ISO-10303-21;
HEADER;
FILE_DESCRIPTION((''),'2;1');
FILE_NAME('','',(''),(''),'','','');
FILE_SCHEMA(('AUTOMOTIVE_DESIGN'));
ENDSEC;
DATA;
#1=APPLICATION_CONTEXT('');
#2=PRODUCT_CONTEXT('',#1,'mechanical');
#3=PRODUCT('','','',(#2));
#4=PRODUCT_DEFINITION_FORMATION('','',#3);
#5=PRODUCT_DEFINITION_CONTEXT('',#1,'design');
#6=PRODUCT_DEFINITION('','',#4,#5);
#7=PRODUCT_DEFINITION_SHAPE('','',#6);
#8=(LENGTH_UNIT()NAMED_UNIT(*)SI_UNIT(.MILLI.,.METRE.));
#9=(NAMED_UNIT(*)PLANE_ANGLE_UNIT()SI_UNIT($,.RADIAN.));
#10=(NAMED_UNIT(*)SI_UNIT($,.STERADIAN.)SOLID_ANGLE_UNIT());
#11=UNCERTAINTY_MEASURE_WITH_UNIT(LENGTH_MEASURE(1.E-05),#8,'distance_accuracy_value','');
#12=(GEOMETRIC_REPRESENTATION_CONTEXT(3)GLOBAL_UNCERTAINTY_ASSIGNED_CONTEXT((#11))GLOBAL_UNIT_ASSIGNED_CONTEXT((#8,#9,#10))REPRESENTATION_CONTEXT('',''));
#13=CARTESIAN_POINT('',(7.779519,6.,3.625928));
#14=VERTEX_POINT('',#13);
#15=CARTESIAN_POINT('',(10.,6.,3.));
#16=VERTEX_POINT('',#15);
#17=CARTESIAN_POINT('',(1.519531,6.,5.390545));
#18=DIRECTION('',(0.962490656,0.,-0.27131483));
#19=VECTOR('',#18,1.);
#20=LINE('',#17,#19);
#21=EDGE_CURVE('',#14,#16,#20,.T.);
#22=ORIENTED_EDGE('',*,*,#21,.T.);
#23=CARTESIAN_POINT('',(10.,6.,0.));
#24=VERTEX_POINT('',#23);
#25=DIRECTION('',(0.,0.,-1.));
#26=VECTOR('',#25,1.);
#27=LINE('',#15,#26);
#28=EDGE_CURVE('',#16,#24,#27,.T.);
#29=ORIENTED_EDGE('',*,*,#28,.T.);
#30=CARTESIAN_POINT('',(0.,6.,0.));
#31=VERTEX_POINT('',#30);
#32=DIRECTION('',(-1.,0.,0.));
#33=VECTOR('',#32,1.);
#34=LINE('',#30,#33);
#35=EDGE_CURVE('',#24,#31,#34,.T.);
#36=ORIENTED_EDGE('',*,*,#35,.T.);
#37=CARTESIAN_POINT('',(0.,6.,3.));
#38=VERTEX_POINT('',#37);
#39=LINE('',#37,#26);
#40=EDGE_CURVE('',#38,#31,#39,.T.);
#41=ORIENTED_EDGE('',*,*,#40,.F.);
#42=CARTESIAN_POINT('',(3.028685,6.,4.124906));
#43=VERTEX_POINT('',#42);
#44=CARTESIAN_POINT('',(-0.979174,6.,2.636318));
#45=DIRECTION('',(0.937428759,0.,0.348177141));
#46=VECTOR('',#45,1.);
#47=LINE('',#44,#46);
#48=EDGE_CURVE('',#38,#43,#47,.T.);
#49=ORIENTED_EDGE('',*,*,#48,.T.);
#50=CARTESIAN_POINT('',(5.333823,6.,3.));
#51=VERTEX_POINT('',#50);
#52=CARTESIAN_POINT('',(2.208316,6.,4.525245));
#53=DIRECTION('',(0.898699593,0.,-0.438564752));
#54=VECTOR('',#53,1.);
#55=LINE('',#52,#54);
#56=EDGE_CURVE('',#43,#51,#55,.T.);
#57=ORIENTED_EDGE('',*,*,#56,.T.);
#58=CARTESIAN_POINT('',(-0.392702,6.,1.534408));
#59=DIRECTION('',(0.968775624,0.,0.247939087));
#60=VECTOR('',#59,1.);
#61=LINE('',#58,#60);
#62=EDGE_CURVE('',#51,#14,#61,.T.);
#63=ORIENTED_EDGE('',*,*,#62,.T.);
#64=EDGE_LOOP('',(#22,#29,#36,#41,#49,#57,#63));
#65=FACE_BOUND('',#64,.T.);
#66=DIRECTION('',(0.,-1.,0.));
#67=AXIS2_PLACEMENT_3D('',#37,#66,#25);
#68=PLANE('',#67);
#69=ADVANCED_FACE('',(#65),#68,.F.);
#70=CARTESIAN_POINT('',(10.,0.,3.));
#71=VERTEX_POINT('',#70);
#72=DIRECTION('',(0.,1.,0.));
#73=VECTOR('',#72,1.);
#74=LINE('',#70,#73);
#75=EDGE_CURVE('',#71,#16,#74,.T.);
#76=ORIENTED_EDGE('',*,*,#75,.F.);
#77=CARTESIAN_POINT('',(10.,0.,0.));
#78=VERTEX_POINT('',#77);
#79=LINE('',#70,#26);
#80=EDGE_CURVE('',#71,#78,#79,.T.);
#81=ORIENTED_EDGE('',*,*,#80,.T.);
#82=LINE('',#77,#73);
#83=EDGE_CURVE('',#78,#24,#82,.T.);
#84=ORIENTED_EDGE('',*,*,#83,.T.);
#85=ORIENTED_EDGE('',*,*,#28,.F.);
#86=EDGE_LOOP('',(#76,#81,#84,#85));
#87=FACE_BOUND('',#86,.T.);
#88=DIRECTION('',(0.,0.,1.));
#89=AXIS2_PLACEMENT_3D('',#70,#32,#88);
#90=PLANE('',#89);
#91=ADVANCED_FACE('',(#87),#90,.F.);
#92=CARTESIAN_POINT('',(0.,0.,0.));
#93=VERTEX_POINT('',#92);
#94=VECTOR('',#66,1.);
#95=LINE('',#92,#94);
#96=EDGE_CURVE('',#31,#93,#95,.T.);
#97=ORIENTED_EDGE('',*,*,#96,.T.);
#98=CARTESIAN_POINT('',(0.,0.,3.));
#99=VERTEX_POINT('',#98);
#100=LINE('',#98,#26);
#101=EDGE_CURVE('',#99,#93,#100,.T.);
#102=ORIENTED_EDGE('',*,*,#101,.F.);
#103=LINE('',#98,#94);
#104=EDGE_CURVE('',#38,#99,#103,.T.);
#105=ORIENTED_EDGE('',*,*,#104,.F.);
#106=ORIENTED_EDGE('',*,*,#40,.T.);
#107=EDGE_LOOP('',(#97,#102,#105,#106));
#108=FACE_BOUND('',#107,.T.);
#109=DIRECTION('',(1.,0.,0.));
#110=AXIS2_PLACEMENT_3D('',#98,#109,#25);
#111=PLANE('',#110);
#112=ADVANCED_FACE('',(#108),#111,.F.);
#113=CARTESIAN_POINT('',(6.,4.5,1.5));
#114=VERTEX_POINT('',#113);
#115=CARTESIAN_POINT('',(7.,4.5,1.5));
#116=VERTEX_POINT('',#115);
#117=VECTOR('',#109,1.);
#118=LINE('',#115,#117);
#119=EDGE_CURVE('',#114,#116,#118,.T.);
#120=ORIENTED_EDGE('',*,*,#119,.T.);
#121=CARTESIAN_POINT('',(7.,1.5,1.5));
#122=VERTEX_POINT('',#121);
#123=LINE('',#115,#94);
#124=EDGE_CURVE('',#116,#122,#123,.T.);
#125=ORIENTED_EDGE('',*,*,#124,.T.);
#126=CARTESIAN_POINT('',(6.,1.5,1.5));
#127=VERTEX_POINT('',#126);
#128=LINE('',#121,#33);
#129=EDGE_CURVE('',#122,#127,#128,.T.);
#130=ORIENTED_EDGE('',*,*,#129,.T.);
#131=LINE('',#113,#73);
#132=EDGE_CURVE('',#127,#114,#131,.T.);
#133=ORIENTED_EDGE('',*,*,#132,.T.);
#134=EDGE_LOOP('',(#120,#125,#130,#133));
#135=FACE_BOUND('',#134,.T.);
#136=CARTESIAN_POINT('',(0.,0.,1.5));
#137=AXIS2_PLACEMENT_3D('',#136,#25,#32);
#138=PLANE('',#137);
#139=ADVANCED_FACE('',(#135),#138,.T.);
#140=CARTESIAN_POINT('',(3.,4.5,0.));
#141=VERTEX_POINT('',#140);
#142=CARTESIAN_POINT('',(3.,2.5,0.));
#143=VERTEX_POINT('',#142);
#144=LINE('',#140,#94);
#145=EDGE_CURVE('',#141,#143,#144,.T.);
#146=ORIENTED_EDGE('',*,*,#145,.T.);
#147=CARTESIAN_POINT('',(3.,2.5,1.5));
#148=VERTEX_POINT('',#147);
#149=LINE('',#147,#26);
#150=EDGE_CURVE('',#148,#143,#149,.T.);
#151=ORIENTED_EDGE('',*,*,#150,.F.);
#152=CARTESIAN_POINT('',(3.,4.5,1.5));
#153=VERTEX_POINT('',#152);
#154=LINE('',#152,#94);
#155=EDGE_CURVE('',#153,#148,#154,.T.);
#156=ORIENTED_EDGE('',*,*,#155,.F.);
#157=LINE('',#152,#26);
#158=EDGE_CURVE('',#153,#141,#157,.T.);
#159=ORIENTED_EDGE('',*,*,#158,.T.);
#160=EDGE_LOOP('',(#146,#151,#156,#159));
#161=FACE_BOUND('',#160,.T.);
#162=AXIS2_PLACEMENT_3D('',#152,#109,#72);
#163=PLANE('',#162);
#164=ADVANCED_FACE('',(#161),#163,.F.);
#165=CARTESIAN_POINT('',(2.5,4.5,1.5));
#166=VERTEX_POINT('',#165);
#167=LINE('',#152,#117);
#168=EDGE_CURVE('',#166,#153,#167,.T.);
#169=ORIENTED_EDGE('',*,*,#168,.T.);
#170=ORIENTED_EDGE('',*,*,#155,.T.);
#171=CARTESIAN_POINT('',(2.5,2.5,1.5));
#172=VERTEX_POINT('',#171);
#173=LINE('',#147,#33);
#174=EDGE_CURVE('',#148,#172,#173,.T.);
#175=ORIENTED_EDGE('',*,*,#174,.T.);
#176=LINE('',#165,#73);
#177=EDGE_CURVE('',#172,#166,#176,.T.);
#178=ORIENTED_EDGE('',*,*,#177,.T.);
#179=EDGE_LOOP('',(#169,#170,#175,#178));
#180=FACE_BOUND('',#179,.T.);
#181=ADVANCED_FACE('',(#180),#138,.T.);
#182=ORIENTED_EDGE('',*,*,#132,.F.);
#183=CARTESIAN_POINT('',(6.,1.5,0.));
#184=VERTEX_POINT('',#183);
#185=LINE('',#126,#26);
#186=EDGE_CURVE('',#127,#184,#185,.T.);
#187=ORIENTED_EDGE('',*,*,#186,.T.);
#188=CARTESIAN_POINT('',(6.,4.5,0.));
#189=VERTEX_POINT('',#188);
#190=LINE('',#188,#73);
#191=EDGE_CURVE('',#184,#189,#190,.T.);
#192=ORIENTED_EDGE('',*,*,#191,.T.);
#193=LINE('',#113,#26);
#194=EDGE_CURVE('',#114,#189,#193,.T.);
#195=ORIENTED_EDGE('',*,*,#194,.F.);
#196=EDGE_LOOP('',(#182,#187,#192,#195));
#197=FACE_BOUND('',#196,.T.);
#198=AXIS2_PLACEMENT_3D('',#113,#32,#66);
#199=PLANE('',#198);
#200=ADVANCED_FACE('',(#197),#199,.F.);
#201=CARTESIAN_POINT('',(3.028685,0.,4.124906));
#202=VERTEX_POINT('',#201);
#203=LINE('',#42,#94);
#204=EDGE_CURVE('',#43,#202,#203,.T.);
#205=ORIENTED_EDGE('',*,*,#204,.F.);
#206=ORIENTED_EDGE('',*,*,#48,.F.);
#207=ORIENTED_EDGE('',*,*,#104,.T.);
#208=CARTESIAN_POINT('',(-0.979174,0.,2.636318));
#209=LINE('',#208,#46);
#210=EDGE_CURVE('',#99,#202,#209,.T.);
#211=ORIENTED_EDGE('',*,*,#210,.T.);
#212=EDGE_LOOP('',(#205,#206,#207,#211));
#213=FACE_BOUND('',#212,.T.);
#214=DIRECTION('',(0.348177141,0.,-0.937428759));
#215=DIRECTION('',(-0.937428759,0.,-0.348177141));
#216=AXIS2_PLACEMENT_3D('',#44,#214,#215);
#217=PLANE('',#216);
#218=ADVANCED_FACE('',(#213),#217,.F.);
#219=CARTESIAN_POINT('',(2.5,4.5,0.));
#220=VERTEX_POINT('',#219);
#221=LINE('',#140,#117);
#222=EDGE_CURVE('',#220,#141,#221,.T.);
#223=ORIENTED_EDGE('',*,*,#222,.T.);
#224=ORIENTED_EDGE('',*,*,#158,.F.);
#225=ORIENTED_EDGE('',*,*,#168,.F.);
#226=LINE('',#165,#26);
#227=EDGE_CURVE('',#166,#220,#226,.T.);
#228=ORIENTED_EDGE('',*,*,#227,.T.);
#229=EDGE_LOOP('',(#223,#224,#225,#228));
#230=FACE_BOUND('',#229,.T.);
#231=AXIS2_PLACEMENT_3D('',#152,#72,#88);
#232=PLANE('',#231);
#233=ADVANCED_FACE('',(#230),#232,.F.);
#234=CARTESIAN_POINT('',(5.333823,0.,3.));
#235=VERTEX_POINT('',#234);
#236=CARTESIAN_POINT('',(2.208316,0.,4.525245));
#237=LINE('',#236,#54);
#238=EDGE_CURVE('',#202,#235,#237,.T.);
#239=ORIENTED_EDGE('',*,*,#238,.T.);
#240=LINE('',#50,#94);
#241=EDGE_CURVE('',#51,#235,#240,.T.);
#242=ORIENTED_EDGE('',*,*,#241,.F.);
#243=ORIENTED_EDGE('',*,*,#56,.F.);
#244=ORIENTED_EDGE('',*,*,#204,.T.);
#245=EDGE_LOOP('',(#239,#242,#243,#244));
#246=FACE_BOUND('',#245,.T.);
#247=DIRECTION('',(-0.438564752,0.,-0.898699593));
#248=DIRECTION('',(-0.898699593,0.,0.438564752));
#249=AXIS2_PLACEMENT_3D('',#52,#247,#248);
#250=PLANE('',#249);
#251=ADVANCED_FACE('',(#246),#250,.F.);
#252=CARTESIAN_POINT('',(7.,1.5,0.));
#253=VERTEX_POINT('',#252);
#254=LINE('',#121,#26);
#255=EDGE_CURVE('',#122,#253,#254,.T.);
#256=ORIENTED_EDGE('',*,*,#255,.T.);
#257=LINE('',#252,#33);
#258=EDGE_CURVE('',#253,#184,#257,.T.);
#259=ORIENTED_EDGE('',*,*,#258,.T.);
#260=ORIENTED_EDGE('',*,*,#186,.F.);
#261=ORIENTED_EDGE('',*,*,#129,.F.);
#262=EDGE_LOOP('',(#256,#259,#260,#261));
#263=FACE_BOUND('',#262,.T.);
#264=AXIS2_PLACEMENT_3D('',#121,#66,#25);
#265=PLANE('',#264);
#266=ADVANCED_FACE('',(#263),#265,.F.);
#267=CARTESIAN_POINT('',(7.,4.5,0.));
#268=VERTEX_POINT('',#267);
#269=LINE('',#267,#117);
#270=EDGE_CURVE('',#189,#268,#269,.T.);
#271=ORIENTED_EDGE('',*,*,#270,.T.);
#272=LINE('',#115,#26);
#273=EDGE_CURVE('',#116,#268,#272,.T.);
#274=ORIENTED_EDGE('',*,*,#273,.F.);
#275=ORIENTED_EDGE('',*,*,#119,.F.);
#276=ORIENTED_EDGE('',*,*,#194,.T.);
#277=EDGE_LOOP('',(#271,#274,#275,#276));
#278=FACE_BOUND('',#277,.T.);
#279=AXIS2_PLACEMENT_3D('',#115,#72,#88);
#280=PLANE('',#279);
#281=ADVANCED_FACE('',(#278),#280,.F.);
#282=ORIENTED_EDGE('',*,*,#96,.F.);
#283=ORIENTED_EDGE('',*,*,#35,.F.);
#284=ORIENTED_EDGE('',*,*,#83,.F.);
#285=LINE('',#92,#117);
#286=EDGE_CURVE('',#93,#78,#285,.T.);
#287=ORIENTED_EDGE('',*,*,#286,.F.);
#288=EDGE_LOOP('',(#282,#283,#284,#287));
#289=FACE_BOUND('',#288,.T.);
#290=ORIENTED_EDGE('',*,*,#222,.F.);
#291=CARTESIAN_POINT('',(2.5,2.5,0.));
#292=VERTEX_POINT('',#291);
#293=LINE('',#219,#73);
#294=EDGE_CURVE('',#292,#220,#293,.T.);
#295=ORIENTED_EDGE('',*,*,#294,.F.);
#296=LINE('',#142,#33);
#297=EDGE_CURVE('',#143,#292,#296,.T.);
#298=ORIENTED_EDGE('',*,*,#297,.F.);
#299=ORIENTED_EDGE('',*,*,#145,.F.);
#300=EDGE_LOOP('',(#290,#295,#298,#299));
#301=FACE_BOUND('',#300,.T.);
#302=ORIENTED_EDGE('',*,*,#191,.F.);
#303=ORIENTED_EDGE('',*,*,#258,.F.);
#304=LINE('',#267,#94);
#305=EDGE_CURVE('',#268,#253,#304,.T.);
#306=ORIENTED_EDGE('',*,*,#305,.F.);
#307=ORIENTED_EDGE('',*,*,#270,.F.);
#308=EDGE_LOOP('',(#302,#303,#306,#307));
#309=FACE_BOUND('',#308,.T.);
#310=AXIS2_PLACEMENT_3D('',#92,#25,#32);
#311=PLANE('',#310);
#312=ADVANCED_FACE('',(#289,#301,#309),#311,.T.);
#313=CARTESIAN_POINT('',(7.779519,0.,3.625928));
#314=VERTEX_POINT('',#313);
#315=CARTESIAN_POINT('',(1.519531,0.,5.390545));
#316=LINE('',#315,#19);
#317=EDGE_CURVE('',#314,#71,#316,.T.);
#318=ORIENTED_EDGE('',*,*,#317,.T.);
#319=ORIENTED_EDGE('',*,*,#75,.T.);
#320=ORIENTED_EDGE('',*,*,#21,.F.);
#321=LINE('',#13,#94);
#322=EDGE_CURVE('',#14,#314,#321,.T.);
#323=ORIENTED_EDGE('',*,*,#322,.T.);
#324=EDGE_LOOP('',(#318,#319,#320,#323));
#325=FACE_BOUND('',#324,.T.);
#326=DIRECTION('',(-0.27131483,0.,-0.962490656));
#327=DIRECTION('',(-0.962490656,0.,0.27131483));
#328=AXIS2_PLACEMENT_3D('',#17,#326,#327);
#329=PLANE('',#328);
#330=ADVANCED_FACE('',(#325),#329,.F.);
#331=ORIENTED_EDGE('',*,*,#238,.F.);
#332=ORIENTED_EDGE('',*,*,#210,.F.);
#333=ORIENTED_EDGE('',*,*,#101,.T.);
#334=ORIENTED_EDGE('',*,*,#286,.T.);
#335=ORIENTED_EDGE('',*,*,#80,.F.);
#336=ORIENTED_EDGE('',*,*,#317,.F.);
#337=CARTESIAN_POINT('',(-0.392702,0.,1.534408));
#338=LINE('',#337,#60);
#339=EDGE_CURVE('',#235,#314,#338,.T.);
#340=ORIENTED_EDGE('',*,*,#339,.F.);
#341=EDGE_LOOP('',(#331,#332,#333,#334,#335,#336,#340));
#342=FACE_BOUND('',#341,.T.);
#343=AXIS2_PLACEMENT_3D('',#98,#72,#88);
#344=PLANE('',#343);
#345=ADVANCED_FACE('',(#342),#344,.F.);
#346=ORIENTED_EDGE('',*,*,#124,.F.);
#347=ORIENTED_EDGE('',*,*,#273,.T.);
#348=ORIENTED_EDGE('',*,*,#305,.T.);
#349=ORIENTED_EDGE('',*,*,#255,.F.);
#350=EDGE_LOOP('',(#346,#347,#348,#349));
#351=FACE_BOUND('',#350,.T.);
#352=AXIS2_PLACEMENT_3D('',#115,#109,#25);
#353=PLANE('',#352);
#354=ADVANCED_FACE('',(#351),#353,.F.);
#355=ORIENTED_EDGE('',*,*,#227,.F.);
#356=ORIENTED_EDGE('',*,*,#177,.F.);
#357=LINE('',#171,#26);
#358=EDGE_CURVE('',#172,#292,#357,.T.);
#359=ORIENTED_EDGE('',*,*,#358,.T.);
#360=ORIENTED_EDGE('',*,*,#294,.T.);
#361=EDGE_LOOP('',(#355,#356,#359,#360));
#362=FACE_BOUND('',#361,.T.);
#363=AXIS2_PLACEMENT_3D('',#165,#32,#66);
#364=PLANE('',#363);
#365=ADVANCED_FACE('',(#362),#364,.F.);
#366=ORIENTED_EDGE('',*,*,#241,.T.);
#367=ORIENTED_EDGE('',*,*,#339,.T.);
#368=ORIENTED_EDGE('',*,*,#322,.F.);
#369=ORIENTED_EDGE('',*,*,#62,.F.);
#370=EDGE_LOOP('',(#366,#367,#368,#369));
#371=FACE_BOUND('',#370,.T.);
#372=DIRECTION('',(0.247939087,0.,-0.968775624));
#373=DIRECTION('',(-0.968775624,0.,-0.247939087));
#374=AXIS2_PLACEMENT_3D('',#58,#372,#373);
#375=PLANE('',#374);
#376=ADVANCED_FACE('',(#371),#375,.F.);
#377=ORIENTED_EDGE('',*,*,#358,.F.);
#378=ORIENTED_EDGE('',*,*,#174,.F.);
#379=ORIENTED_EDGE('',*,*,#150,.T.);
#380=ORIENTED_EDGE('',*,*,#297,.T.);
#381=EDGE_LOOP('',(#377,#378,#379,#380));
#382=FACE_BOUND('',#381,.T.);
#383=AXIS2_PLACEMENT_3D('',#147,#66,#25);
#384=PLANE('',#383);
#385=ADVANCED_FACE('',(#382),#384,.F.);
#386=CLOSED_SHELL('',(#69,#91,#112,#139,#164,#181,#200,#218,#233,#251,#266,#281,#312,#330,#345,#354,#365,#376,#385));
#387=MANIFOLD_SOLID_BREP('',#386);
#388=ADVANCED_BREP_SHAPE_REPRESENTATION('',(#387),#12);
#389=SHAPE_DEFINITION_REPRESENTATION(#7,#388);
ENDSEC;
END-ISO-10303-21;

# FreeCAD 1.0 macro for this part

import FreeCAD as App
import Part
import Sketcher
from FreeCAD import Vector
Q = App.Units.Quantity

doc = App.newDocument("Part")
body = doc.addObject("PartDesign::Body", "Body")

# Sketch on XY plane
sketch1 = body.newObject("Sketcher::SketchObject", "Sketch")
sketch1.AttachmentSupport = (doc.getObject("XY_Plane"), [""])
sketch1.MapMode = "FlatFace"
sketch1.addGeometry(Part.LineSegment(Vector(0, 6, 0), Vector(0, 0, 0)), False)
sketch1.addGeometry(Part.LineSegment(Vector(0, 0, 0), Vector(10, 0, 0)), False)
sketch1.addGeometry(Part.LineSegment(Vector(10, 0, 0), Vector(10, 6, 0)), False)
sketch1.addGeometry(Part.LineSegment(Vector(10, 6, 0), Vector(0, 6, 0)), False)
sketch1.addConstraint(Sketcher.Constraint("Coincident", 0, 2, 1, 1))
sketch1.addConstraint(Sketcher.Constraint("Coincident", 1, 2, 2, 1))
sketch1.addConstraint(Sketcher.Constraint("Coincident", 2, 2, 3, 1))
sketch1.addConstraint(Sketcher.Constraint("Coincident", 3, 2, 0, 1))
sketch1.addConstraint(Sketcher.Constraint("Vertical", 0))
sketch1.addConstraint(Sketcher.Constraint("Horizontal", 1))
sketch1.addConstraint(Sketcher.Constraint("Vertical", 2))
sketch1.addConstraint(Sketcher.Constraint("Horizontal", 3))
sketch1.addConstraint(Sketcher.Constraint("Coincident", 0, 2, -1, 1))
sketch1.addConstraint(Sketcher.Constraint("DistanceX", 1, 1, 1, 2, Q("10 mm")))
sketch1.addConstraint(Sketcher.Constraint("DistanceY", 0, 2, 0, 1, Q("6 mm")))
pad1 = body.newObject("PartDesign::Pad", "Pad")
pad1.Profile = sketch1
pad1.Length = 3

# Sketch on XZ plane
sketch2 = body.newObject("Sketcher::SketchObject", "Sketch001")
sketch2.AttachmentSupport = (doc.getObject("XZ_Plane"), [""])
sketch2.MapMode = "FlatFace"
sketch2.addGeometry(Part.LineSegment(Vector(3, 4.1, 0), Vector(0, 3, 0)), False)
sketch2.addGeometry(Part.LineSegment(Vector(0, 3, 0), Vector(5.3, 3, 0)), False)
sketch2.addGeometry(Part.LineSegment(Vector(5.3, 3, 0), Vector(3, 4.1, 0)), False)
sketch2.addGeometry(Part.LineSegment(Vector(7.8, 3.6, 0), Vector(5.3, 3, 0)), False)
sketch2.addGeometry(Part.LineSegment(Vector(5.3, 3, 0), Vector(10, 3, 0)), False)
sketch2.addGeometry(Part.LineSegment(Vector(10, 3, 0), Vector(7.8, 3.6, 0)), False)
sketch2.addConstraint(Sketcher.Constraint("Coincident", 0, 2, 1, 1))
sketch2.addConstraint(Sketcher.Constraint("Coincident", 1, 2, 2, 1))
sketch2.addConstraint(Sketcher.Constraint("Coincident", 2, 2, 0, 1))
sketch2.addConstraint(Sketcher.Constraint("Coincident", 3, 2, 4, 1))
sketch2.addConstraint(Sketcher.Constraint("Coincident", 4, 2, 5, 1))
sketch2.addConstraint(Sketcher.Constraint("Coincident", 5, 2, 3, 1))
sketch2.addConstraint(Sketcher.Constraint("Horizontal", 1))
sketch2.addConstraint(Sketcher.Constraint("Horizontal", 4))
sketch2.addConstraint(Sketcher.Constraint("Coincident", 3, 2, 1, 2))
sketch2.addConstraint(Sketcher.Constraint("PointOnObject", 0, 2, -2))
sketch2.addConstraint(Sketcher.Constraint("DistanceY", -1, 1, 0, 2, Q("3 mm")))
sketch2.addConstraint(Sketcher.Constraint("DistanceX", -1, 1, 4, 2, Q("10 mm")))
sketch2.addConstraint(Sketcher.Constraint("Distance", 2, Q("2.564971 mm")))
sketch2.addConstraint(Sketcher.Constraint("Distance", 3, Q("2.524522 mm")))
sketch2.addConstraint(Sketcher.Constraint("DistanceX", 1, 1, 1, 2, Q("5.333823 mm")))
sketch2.addConstraint(Sketcher.Constraint("DistanceX", -1, 1, 5, 2, Q("7.779519 mm")))
sketch2.addConstraint(Sketcher.Constraint("DistanceX", 2, 2, 1, 2, Q("2.305138 mm")))
pad2 = body.newObject("PartDesign::Pad", "Pad001")
pad2.Profile = sketch2
pad2.Length = 6
pad2.Reversed = True

# Sketch on XY plane
sketch3 = body.newObject("Sketcher::SketchObject", "Sketch002")
sketch3.AttachmentSupport = (doc.getObject("XY_Plane"), [""])
sketch3.MapMode = "FlatFace"
sketch3.addGeometry(Part.LineSegment(Vector(3, 4.5, 0), Vector(3, 2.5, 0)), False)
sketch3.addGeometry(Part.LineSegment(Vector(3, 2.5, 0), Vector(2.5, 2.5, 0)), False)
sketch3.addGeometry(Part.LineSegment(Vector(2.5, 2.5, 0), Vector(2.5, 4.5, 0)), False)
sketch3.addGeometry(Part.LineSegment(Vector(2.5, 4.5, 0), Vector(3, 4.5, 0)), False)
sketch3.addGeometry(Part.LineSegment(Vector(7, 4.5, 0), Vector(7, 1.5, 0)), False)
sketch3.addGeometry(Part.LineSegment(Vector(7, 1.5, 0), Vector(6, 1.5, 0)), False)
sketch3.addGeometry(Part.LineSegment(Vector(6, 1.5, 0), Vector(6, 4.5, 0)), False)
sketch3.addGeometry(Part.LineSegment(Vector(6, 4.5, 0), Vector(7, 4.5, 0)), False)
sketch3.addConstraint(Sketcher.Constraint("Coincident", 0, 2, 1, 1))
sketch3.addConstraint(Sketcher.Constraint("Coincident", 1, 2, 2, 1))
sketch3.addConstraint(Sketcher.Constraint("Coincident", 2, 2, 3, 1))
sketch3.addConstraint(Sketcher.Constraint("Coincident", 3, 2, 0, 1))
sketch3.addConstraint(Sketcher.Constraint("Coincident", 4, 2, 5, 1))
sketch3.addConstraint(Sketcher.Constraint("Coincident", 5, 2, 6, 1))
sketch3.addConstraint(Sketcher.Constraint("Coincident", 6, 2, 7, 1))
sketch3.addConstraint(Sketcher.Constraint("Coincident", 7, 2, 4, 1))
sketch3.addConstraint(Sketcher.Constraint("Vertical", 0))
sketch3.addConstraint(Sketcher.Constraint("Horizontal", 1))
sketch3.addConstraint(Sketcher.Constraint("Vertical", 2))
sketch3.addConstraint(Sketcher.Constraint("Horizontal", 3))
sketch3.addConstraint(Sketcher.Constraint("Vertical", 4))
sketch3.addConstraint(Sketcher.Constraint("Horizontal", 5))
sketch3.addConstraint(Sketcher.Constraint("Vertical", 6))
sketch3.addConstraint(Sketcher.Constraint("Horizontal", 7))
sketch3.addConstraint(Sketcher.Constraint("Horizontal", 3, 2, 6, 2))
sketch3.addConstraint(Sketcher.Constraint("DistanceX", 5, 2, 5, 1, Q("1 mm")))
sketch3.addConstraint(Sketcher.Constraint("DistanceY", 0, 2, 0, 1, Q("2 mm")))
sketch3.addConstraint(Sketcher.Constraint("DistanceY", 4, 2, 4, 1, Q("3 mm")))
sketch3.addConstraint(Sketcher.Constraint("DistanceX", 1, 2, 1, 1, Q("0.5 mm")))
sketch3.addConstraint(Sketcher.Constraint("DistanceX", -1, 1, 0, 2, Q("3 mm")))
sketch3.addConstraint(Sketcher.Constraint("DistanceX", -1, 1, 4, 2, Q("7 mm")))
sketch3.addConstraint(Sketcher.Constraint("DistanceY", -1, 1, 0, 2, Q("2.5 mm")))
pocket1 = body.newObject("PartDesign::Pocket", "Pocket")
pocket1.Profile = sketch3
pocket1.Length = 1.5
pocket1.Reversed = True

doc.recompute()
